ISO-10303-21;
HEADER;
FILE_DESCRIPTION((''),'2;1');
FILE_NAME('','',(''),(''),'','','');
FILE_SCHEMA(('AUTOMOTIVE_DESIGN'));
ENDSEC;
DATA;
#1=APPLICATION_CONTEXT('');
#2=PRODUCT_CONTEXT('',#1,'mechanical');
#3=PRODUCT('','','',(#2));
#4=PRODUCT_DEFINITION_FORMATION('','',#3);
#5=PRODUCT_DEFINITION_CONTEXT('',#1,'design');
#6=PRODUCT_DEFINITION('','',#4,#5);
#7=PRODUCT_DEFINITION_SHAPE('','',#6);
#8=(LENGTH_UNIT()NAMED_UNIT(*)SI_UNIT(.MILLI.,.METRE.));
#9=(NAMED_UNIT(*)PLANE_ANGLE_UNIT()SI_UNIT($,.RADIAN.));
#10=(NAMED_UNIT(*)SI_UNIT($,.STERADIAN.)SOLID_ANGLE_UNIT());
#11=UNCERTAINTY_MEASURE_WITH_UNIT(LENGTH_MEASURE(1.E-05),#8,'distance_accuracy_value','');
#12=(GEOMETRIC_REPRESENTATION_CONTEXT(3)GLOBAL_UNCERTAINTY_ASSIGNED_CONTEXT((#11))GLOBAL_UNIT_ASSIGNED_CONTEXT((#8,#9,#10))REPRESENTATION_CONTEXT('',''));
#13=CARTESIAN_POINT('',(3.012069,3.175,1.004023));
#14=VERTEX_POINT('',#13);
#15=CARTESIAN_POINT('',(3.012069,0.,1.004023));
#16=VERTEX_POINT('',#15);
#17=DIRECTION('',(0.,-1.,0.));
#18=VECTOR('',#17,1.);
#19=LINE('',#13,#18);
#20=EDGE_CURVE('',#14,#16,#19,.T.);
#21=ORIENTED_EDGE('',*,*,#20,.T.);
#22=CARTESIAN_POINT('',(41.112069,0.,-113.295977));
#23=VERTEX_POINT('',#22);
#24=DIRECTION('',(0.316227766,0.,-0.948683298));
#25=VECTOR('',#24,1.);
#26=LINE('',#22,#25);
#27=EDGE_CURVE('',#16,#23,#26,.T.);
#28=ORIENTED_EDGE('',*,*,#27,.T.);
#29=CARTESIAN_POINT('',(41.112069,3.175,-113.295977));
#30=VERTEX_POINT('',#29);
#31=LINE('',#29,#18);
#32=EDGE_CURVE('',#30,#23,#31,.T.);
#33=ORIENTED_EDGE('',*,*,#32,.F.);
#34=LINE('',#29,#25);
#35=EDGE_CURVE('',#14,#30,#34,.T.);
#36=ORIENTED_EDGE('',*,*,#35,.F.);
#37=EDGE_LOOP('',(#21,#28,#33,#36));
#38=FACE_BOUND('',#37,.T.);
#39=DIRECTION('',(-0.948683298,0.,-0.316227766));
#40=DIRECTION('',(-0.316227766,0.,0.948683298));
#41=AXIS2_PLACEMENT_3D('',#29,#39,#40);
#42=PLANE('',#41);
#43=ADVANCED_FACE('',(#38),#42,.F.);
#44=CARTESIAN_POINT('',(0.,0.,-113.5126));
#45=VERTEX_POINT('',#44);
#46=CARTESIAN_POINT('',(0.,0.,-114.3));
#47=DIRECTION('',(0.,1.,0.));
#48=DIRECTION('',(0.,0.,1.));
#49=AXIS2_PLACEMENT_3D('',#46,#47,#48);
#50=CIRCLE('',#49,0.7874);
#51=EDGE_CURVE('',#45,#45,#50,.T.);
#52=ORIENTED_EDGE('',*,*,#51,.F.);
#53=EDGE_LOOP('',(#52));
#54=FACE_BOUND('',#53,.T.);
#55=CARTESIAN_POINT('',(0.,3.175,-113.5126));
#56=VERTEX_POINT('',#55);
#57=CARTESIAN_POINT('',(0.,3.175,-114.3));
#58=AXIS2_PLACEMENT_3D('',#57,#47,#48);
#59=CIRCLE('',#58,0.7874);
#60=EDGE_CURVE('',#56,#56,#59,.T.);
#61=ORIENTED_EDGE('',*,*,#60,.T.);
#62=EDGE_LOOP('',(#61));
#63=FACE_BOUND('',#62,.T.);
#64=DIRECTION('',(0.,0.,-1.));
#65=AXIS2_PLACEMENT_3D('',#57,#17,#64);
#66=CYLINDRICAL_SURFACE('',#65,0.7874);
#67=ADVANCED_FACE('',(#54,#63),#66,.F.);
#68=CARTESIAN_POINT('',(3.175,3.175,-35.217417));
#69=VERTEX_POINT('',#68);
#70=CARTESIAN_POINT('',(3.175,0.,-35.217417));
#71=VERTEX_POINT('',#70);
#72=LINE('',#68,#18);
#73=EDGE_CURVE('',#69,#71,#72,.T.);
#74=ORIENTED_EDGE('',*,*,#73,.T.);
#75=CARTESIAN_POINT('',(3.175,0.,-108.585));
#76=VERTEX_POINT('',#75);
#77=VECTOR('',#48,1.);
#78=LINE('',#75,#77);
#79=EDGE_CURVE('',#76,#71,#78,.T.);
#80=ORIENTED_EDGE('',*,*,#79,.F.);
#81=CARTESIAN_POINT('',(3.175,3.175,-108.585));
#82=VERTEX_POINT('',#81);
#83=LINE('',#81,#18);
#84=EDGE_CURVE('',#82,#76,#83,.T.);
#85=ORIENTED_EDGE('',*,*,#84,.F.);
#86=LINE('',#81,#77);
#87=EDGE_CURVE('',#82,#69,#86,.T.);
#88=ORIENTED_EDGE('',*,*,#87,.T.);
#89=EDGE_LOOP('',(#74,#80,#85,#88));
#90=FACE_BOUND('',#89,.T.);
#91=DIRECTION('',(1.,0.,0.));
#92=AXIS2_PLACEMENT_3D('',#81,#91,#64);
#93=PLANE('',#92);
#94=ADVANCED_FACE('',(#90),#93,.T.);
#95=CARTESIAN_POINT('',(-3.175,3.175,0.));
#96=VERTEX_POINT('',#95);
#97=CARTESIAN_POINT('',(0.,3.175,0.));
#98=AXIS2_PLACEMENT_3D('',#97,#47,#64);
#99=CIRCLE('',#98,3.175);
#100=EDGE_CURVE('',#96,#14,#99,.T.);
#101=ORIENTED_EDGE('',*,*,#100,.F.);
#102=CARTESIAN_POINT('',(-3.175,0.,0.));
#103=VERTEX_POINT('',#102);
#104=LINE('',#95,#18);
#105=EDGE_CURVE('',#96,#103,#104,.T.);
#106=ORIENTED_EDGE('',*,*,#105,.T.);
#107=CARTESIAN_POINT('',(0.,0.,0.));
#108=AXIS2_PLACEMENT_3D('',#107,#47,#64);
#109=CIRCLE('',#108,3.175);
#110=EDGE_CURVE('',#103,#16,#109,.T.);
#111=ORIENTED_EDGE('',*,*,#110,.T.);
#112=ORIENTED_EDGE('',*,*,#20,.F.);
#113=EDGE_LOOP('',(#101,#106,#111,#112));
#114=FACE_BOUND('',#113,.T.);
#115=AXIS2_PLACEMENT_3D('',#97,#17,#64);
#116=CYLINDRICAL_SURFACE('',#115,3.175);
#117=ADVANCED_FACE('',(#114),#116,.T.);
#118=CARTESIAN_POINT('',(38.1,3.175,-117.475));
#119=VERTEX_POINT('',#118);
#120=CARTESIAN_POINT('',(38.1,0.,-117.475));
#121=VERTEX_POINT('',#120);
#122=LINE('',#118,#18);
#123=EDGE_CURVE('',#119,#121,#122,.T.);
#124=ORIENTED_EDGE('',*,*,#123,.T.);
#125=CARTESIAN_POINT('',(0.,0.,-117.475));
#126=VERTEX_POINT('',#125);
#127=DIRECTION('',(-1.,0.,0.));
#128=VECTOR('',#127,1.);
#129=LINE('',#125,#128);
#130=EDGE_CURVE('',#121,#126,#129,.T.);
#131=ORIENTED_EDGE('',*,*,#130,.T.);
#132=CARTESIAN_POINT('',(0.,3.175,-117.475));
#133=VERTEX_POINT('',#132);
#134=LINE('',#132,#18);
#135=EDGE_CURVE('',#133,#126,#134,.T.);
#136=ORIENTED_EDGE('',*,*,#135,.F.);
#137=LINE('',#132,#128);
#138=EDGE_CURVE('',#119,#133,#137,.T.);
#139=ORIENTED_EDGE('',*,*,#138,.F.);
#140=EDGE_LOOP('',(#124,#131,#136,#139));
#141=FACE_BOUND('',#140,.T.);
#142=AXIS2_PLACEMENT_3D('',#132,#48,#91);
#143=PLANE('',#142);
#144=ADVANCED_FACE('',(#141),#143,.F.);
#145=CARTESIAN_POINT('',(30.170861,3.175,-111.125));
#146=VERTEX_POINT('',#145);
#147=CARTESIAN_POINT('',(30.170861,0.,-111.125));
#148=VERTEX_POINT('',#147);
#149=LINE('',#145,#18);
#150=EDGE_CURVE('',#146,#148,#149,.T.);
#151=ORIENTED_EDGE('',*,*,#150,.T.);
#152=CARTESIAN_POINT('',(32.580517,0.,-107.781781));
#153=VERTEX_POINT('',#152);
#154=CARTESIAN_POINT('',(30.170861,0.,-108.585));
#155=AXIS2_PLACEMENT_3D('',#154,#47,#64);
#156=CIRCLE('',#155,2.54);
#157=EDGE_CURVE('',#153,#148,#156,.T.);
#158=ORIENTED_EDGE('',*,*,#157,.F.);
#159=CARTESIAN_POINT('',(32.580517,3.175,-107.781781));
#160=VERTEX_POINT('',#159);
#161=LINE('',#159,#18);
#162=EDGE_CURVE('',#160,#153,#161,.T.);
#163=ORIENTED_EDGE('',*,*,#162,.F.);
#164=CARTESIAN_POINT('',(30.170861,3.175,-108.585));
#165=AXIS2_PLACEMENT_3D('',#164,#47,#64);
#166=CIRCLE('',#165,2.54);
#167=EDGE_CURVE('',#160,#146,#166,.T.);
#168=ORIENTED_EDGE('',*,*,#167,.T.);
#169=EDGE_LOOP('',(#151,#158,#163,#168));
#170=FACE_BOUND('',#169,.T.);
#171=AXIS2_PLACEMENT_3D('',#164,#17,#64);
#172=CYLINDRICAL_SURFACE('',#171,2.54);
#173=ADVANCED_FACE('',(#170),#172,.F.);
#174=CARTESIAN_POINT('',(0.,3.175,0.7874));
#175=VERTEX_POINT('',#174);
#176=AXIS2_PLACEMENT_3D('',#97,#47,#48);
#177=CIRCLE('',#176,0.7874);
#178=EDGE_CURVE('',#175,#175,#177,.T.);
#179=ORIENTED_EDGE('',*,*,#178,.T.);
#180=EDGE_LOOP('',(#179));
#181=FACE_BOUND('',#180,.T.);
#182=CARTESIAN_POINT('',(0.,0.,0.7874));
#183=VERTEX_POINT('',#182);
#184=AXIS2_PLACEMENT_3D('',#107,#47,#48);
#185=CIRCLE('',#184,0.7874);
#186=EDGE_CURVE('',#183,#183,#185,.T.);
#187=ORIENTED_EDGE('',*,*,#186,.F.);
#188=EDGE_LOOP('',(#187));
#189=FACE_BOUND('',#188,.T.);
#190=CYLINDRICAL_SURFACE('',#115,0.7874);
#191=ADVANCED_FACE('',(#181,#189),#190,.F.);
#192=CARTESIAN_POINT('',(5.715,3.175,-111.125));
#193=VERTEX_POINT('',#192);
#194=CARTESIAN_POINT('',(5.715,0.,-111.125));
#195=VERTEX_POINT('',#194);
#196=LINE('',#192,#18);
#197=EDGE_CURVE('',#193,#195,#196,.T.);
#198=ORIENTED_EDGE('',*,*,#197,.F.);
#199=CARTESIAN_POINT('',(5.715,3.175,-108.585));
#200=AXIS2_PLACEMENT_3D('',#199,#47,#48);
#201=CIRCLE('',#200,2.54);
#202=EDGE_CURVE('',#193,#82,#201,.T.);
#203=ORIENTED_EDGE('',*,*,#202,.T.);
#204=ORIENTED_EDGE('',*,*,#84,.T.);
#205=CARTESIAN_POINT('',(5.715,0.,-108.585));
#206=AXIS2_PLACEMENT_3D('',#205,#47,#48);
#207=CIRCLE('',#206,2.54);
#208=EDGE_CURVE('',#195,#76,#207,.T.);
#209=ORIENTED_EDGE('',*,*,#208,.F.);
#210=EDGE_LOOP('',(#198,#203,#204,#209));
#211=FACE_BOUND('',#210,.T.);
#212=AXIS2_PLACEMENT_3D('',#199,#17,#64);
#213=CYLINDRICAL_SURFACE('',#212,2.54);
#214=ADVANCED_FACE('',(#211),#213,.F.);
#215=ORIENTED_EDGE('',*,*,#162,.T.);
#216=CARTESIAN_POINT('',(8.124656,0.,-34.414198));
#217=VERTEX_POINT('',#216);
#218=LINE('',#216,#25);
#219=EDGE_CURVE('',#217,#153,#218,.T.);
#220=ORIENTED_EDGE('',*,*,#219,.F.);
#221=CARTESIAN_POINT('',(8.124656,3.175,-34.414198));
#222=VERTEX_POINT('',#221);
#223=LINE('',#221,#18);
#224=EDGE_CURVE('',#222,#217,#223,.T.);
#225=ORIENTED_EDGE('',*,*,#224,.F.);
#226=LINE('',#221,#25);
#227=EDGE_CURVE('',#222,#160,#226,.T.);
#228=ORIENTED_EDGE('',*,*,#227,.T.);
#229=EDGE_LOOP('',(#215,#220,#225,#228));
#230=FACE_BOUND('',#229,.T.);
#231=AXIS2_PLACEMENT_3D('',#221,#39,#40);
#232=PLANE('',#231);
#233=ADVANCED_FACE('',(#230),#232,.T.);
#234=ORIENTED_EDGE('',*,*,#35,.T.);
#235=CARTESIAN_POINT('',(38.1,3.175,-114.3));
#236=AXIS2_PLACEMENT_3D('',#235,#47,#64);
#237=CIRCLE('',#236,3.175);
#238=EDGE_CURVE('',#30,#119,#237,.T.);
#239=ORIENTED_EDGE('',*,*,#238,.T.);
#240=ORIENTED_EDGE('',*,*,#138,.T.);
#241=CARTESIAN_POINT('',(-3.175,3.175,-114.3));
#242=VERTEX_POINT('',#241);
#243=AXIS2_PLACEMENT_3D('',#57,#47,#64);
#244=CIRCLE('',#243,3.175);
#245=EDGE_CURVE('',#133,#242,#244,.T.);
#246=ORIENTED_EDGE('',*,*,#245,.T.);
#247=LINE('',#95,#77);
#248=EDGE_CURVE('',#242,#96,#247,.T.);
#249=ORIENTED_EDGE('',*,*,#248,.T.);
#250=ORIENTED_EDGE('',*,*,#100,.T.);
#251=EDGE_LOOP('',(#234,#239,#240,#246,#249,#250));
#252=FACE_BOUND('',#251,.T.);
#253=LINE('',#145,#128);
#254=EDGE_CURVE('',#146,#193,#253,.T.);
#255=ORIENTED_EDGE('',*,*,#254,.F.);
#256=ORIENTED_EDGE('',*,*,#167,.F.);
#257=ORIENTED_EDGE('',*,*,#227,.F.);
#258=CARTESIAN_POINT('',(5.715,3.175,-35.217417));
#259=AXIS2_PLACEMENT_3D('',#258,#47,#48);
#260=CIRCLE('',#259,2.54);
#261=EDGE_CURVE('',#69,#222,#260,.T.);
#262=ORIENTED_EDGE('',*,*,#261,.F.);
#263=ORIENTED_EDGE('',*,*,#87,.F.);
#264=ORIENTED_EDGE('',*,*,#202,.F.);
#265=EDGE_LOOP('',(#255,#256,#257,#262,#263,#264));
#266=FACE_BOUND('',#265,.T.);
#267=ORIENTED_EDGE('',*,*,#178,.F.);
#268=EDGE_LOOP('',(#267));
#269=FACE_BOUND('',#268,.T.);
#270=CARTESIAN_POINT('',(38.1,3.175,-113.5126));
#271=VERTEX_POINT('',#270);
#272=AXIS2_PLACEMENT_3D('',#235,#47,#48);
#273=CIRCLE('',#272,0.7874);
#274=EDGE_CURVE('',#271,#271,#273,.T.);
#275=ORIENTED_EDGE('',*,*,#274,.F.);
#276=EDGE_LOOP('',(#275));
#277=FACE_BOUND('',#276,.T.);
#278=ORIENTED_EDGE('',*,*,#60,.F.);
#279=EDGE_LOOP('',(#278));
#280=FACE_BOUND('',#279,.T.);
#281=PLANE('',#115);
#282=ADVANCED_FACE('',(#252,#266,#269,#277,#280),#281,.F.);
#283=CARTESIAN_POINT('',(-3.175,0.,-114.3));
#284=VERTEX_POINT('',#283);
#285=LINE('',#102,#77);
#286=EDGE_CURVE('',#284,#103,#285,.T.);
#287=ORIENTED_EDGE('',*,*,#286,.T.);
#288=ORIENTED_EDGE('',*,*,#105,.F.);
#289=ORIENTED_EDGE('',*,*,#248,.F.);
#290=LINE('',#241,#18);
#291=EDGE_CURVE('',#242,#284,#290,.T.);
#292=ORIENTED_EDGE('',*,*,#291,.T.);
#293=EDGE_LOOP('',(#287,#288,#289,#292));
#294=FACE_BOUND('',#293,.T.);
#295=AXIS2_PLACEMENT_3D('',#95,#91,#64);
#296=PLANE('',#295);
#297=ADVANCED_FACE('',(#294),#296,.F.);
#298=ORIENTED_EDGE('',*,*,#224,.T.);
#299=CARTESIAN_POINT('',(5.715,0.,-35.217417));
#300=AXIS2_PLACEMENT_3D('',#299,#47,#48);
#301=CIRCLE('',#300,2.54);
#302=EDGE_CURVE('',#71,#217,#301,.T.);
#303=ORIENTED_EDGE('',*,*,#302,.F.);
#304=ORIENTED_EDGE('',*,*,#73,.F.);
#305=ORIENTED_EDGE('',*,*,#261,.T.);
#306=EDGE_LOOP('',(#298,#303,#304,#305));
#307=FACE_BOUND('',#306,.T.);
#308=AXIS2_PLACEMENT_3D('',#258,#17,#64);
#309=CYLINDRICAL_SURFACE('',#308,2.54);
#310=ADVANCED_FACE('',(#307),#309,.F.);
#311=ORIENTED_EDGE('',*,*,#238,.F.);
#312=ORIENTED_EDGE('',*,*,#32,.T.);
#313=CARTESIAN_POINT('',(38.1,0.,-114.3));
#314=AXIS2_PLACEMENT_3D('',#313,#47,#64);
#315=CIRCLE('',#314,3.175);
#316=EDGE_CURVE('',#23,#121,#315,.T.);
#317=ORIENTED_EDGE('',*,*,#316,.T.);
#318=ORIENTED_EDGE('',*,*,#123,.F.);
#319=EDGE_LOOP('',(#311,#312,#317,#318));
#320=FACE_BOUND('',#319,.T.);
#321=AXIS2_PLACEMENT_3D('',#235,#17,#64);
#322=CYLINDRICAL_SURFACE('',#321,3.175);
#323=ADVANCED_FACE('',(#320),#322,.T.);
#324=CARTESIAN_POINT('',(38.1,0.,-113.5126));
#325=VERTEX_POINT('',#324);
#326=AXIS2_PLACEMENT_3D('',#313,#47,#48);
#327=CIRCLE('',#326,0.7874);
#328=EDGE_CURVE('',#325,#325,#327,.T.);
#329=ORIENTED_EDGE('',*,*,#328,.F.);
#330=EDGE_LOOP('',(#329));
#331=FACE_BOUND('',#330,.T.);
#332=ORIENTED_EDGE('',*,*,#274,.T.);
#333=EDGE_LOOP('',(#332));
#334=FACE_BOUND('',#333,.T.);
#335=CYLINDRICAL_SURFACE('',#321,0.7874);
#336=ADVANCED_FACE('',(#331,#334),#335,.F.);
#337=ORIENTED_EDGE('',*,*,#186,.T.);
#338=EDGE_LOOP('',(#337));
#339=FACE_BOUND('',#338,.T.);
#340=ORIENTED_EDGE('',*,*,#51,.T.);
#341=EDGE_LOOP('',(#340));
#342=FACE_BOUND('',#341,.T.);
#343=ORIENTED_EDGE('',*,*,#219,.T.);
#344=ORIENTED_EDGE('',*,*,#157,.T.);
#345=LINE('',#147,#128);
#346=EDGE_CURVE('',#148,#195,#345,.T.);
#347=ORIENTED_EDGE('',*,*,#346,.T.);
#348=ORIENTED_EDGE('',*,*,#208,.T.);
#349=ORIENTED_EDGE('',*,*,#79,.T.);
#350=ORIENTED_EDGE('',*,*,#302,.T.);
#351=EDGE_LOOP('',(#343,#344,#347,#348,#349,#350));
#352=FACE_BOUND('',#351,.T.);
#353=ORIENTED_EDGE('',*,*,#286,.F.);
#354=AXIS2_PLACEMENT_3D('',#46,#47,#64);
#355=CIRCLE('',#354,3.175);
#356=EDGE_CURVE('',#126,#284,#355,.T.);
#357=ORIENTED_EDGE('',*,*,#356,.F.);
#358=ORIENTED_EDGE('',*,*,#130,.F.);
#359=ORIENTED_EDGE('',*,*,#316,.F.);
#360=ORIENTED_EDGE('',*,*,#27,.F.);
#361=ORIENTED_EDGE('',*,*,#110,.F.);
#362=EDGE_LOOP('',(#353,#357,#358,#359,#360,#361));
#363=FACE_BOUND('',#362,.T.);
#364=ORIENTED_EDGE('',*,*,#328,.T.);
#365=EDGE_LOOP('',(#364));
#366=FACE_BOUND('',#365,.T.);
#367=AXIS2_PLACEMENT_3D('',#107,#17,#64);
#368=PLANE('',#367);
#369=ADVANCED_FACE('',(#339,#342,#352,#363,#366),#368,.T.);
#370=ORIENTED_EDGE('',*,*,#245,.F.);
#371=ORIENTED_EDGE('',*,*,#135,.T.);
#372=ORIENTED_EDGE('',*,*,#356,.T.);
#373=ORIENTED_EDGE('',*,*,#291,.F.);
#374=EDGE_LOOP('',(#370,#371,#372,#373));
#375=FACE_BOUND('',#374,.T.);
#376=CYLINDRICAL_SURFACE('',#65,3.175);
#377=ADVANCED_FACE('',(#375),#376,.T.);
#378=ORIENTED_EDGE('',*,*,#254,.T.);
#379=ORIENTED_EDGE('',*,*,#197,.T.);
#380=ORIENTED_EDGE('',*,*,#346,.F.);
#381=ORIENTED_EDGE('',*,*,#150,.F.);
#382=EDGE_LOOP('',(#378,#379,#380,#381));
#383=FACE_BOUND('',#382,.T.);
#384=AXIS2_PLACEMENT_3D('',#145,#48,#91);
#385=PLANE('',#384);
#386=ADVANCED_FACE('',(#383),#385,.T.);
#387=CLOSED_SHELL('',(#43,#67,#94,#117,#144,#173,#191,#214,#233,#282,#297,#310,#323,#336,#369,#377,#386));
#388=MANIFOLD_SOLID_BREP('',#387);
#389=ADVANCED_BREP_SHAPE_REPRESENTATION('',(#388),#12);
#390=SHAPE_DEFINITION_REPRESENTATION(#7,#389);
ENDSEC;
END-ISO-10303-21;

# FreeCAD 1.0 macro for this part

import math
import FreeCAD as App
import Part
import Sketcher
from FreeCAD import Vector
Q = App.Units.Quantity

doc = App.newDocument("Part")
body = doc.addObject("PartDesign::Body", "Body")

# Sketch on XZ plane
sketch1 = body.newObject("Sketcher::SketchObject", "Sketch")
sketch1.AttachmentSupport = (doc.getObject("XZ_Plane"), [""])
sketch1.MapMode = "FlatFace"
sketch1.addGeometry([
    Part.LineSegment(Vector(-3.2, -114.3, 0), Vector(-3.2, 0, 0)),  # 0
    Part.ArcOfCircle(Part.Circle(Vector(0, 0, 0), Vector(0, 0, 1), 3.2), math.radians(18), math.radians(180)),  # 1
    Part.LineSegment(Vector(3, 1, 0), Vector(41.1, -113.3, 0)),  # 2
    Part.ArcOfCircle(Part.Circle(Vector(38.1, -114.3, 0), Vector(0, 0, 1), 3.2), math.radians(-90), math.radians(18)),  # 3
    Part.LineSegment(Vector(38.1, -117.5, 0), Vector(0, -117.5, 0)),  # 4
    Part.ArcOfCircle(Part.Circle(Vector(0, -114.3, 0), Vector(0, 0, 1), 3.2), math.radians(-180), math.radians(-90)),  # 5
    Part.Circle(Vector(0, 0, 0), Vector(0, 0, 1), 0.8),  # 6
    Part.Circle(Vector(38.1, -114.3, 0), Vector(0, 0, 1), 0.8),  # 7
    Part.ArcOfCircle(Part.Circle(Vector(5.7, -108.6, 0), Vector(0, 0, 1), 2.5), math.radians(-180), math.radians(-90)),  # 8
    Part.LineSegment(Vector(5.7, -111.1, 0), Vector(30.2, -111.1, 0)),  # 9
    Part.ArcOfCircle(Part.Circle(Vector(30.2, -108.6, 0), Vector(0, 0, 1), 2.5), math.radians(-90), math.radians(18)),  # 10
    Part.LineSegment(Vector(32.6, -107.8, 0), Vector(8.1, -34.4, 0)),  # 11
    Part.ArcOfCircle(Part.Circle(Vector(5.7, -35.2, 0), Vector(0, 0, 1), 2.5), math.radians(18), math.radians(180)),  # 12
    Part.LineSegment(Vector(3.2, -35.2, 0), Vector(3.2, -108.6, 0)),  # 13
    Part.Circle(Vector(0, -114.3, 0), Vector(0, 0, 1), 0.8),  # 14
], False)
sketch1.addConstraint([
    Sketcher.Constraint("Tangent", 0, 2, 1, 2),
    Sketcher.Constraint("Tangent", 1, 1, 2, 1),
    Sketcher.Constraint("Tangent", 2, 2, 3, 2),
    Sketcher.Constraint("Tangent", 3, 1, 4, 1),
    Sketcher.Constraint("Tangent", 4, 2, 5, 2),
    Sketcher.Constraint("Tangent", 5, 1, 0, 1),
    Sketcher.Constraint("Tangent", 8, 2, 9, 1),
    Sketcher.Constraint("Tangent", 9, 2, 10, 1),
    Sketcher.Constraint("Tangent", 10, 2, 11, 1),
    Sketcher.Constraint("Tangent", 11, 2, 12, 1),
    Sketcher.Constraint("Tangent", 12, 2, 13, 1),
    Sketcher.Constraint("Tangent", 13, 2, 8, 1),
    Sketcher.Constraint("Vertical", 0),
    Sketcher.Constraint("Horizontal", 4),
    Sketcher.Constraint("Horizontal", 9),
    Sketcher.Constraint("Vertical", 13),
    Sketcher.Constraint("Coincident", 1, 3, -1, 1),
    Sketcher.Constraint("Coincident", 6, 3, -1, 1),
    Sketcher.Constraint("Coincident", 7, 3, 3, 3),
    Sketcher.Constraint("Coincident", 14, 3, 5, 3),
    Sketcher.Constraint("Equal", 1, 3),
    Sketcher.Constraint("Equal", 3, 5),
    Sketcher.Constraint("Equal", 6, 7),
    Sketcher.Constraint("Equal", 8, 10),
    Sketcher.Constraint("Equal", 10, 12),
    Sketcher.Constraint("Equal", 7, 14),
    Sketcher.Constraint("Parallel", 2, 11),
    Sketcher.Constraint("Radius", 8, Q("0.1 in")),
    Sketcher.Constraint("Diameter", 6, Q("0.062 in")),
    Sketcher.Constraint("DistanceX", 4, 2, 4, 1, Q("1.5 in")),
    Sketcher.Constraint("DistanceY", 0, 1, 0, 2, Q("4.5 in")),
    Sketcher.Constraint("Radius", 1, Q("0.125 in")),
    Sketcher.Constraint("DistanceX", 0, 2, 12, 3, Q("0.35 in")),
    Sketcher.Constraint("DistanceY", 3, 1, 10, 3, Q("0.35 in")),
    Sketcher.Constraint("DistanceX", 9, 1, 9, 2, Q("24.455861 mm")),
])
pad1 = body.newObject("PartDesign::Pad", "Pad")
pad1.Profile = sketch1
pad1.Length = Q("0.125 in")
pad1.Reversed = True

doc.recompute()
